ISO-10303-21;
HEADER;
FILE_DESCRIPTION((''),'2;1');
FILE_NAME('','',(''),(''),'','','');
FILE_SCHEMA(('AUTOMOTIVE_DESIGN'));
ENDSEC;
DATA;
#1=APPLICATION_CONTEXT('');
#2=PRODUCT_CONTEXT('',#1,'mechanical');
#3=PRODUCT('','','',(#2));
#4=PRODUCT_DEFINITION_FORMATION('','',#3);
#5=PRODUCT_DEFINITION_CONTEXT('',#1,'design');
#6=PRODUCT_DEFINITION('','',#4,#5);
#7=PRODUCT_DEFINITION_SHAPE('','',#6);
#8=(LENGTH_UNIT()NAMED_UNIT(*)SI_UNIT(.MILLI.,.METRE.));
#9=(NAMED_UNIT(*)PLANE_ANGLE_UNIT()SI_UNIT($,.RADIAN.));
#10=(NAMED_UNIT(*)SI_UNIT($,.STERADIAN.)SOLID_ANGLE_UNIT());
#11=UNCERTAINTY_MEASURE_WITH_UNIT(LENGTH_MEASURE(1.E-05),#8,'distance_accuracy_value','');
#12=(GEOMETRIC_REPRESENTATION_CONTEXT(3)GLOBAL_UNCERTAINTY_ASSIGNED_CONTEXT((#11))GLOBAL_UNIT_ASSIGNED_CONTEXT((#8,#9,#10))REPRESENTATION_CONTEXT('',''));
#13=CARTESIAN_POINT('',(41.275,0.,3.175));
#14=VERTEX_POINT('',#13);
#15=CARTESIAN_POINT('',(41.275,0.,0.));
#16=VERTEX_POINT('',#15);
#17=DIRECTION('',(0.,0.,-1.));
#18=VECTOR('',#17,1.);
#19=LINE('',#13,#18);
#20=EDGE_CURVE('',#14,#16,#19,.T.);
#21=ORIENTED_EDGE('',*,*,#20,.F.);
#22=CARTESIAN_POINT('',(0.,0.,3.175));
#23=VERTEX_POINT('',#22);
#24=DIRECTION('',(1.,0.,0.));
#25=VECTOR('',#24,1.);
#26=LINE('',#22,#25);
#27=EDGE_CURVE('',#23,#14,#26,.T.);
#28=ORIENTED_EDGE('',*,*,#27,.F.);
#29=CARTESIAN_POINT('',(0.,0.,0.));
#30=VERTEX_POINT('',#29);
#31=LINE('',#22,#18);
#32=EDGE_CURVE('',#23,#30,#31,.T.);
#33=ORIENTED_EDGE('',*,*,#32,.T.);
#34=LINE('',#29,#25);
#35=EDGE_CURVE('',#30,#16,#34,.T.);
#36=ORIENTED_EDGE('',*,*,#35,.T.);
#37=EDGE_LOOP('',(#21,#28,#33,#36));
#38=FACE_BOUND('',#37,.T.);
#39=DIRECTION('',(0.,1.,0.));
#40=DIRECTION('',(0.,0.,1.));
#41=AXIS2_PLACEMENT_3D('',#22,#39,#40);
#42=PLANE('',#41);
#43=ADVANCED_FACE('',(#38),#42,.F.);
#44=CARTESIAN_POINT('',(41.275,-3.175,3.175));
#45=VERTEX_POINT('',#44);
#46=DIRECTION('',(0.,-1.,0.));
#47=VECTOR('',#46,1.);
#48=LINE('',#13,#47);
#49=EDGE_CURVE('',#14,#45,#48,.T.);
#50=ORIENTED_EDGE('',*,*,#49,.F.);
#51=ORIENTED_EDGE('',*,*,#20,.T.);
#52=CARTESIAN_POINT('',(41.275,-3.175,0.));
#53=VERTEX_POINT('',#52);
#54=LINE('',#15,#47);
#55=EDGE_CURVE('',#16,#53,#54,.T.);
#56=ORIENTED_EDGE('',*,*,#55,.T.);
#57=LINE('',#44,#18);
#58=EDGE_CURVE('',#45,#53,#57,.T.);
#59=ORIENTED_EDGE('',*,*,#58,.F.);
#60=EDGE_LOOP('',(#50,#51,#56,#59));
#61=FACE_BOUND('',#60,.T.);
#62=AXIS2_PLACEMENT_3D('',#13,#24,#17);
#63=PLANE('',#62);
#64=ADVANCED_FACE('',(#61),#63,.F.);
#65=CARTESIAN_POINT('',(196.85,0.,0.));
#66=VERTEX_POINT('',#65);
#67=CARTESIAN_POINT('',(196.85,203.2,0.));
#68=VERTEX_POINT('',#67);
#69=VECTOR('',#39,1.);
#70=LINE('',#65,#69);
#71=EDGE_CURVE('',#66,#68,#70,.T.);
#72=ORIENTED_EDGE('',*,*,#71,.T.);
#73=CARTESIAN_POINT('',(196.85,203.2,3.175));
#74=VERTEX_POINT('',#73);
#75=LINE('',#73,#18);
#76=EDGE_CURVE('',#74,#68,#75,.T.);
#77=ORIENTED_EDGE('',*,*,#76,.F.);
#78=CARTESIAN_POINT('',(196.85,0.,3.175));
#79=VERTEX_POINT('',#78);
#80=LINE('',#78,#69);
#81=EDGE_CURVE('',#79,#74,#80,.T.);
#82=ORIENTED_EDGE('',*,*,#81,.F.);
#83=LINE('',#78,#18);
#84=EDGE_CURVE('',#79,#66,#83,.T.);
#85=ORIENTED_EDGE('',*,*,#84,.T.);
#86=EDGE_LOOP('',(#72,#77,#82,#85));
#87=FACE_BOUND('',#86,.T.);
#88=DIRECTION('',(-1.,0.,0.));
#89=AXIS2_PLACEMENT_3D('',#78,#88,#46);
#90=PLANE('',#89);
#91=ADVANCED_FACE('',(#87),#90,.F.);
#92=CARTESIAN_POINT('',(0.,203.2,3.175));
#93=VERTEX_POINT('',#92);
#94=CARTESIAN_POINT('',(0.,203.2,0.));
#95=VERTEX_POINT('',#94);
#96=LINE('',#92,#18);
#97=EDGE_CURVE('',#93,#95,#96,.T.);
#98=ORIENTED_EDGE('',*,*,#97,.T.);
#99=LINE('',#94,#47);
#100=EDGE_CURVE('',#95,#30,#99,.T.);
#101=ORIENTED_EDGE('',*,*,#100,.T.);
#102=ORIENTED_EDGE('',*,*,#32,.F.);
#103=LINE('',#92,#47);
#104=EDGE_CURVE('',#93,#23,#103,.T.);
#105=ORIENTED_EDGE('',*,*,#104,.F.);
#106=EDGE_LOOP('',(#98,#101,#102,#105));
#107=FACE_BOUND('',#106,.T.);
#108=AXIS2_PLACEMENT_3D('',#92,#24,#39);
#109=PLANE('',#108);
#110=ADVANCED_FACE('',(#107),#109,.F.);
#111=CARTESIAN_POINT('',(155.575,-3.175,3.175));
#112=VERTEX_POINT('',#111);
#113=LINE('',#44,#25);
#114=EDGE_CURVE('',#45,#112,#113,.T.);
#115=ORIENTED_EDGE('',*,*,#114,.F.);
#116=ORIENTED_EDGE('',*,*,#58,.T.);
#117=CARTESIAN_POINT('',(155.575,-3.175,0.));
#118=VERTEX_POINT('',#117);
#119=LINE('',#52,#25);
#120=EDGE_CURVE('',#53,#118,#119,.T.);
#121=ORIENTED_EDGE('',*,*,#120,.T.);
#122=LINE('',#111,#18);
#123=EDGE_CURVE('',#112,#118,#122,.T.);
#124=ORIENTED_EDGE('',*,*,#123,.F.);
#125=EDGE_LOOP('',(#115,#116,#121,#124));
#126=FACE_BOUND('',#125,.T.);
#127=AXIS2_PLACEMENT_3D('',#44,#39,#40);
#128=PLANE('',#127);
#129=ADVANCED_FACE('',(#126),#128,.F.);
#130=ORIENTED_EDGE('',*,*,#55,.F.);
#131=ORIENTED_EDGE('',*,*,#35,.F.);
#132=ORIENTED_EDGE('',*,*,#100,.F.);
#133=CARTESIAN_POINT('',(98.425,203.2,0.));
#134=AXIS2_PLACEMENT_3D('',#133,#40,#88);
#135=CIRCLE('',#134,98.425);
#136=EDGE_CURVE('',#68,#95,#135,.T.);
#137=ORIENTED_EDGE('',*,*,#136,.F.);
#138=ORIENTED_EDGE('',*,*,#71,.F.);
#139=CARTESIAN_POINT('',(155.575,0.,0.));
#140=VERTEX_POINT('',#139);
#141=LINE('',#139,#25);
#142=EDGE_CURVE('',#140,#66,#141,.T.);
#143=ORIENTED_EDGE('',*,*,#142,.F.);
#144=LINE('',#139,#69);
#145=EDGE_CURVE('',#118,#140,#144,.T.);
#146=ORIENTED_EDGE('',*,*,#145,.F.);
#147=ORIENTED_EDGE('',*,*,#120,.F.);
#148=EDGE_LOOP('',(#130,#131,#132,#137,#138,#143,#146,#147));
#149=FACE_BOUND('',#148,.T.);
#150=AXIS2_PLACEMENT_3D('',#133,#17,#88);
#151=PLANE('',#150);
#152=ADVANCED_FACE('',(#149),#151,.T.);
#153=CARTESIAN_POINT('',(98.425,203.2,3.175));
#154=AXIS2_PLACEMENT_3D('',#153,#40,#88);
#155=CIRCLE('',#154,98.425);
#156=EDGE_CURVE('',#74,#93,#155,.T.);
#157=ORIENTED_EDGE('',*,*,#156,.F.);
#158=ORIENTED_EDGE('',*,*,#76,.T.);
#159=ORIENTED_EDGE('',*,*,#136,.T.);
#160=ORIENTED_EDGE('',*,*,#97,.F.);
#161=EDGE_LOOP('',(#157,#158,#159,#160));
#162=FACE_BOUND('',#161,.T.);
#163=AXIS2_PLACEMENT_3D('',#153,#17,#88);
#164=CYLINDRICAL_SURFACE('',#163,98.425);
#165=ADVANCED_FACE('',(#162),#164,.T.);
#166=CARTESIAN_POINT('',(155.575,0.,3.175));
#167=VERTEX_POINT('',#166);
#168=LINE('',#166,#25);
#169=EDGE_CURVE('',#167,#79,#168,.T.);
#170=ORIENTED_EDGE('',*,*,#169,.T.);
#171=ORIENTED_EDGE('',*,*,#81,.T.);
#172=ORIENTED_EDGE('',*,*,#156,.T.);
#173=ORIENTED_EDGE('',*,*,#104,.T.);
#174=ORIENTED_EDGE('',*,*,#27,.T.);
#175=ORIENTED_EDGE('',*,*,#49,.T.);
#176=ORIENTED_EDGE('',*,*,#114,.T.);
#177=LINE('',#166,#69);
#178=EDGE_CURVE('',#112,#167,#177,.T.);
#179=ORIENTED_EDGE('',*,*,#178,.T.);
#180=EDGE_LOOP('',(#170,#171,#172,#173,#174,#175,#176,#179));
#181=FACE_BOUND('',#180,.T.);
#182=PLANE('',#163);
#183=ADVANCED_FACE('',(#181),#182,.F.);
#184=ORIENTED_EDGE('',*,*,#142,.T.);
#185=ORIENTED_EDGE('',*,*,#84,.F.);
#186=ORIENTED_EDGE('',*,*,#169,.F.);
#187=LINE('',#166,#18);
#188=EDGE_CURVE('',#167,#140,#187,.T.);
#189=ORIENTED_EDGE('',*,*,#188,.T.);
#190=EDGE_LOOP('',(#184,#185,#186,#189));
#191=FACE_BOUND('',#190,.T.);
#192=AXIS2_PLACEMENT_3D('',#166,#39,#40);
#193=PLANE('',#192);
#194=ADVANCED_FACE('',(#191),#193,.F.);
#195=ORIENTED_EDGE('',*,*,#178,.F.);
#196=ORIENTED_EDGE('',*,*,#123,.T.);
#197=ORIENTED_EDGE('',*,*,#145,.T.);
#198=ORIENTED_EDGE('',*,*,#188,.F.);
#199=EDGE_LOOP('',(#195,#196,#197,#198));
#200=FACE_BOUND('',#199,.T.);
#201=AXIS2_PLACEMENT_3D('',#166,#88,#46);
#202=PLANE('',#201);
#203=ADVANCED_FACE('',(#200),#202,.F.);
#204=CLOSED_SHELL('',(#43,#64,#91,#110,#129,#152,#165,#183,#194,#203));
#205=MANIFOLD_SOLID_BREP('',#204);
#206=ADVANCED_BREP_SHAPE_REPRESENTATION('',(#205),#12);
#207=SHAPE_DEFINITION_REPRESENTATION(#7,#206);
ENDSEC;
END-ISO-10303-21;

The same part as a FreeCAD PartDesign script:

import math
import FreeCAD as App
import Part
import Sketcher
Q = App.Units.Quantity

doc = App.newDocument("Part")
body = doc.addObject("PartDesign::Body", "Body")

sketch1 = body.newObject("Sketcher::SketchObject", "Sketch")
sketch1.AttachmentSupport = (doc.getObject("XY_Plane"), [""])
sketch1.MapMode = "FlatFace"
sketch1.addGeometry(Part.LineSegment(App.Vector(0, 203.2, 0), App.Vector(0, 0, 0)), False)
sketch1.addGeometry(Part.LineSegment(App.Vector(0, 0, 0), App.Vector(41.3, 0, 0)), False)
sketch1.addGeometry(Part.LineSegment(App.Vector(41.3, 0, 0), App.Vector(41.3, -3.2, 0)), False)
sketch1.addGeometry(Part.LineSegment(App.Vector(41.3, -3.2, 0), App.Vector(155.6, -3.2, 0)), False)
sketch1.addGeometry(Part.LineSegment(App.Vector(155.6, -3.2, 0), App.Vector(155.6, 0, 0)), False)
sketch1.addGeometry(Part.LineSegment(App.Vector(155.6, 0, 0), App.Vector(196.8, 0, 0)), False)
sketch1.addGeometry(Part.LineSegment(App.Vector(196.8, 0, 0), App.Vector(196.8, 203.2, 0)), False)
sketch1.addGeometry(Part.ArcOfCircle(Part.Circle(App.Vector(98.4, 203.2, 0), App.Vector(0, 0, 1), 98.4), math.radians(0), math.radians(180)), False)
sketch1.addConstraint(Sketcher.Constraint("Coincident", 0, 2, 1, 1))
sketch1.addConstraint(Sketcher.Constraint("Coincident", 1, 2, 2, 1))
sketch1.addConstraint(Sketcher.Constraint("Coincident", 2, 2, 3, 1))
sketch1.addConstraint(Sketcher.Constraint("Coincident", 3, 2, 4, 1))
sketch1.addConstraint(Sketcher.Constraint("Coincident", 4, 2, 5, 1))
sketch1.addConstraint(Sketcher.Constraint("Coincident", 5, 2, 6, 1))
sketch1.addConstraint(Sketcher.Constraint("Tangent", 6, 2, 7, 1))
sketch1.addConstraint(Sketcher.Constraint("Tangent", 7, 2, 0, 1))
sketch1.addConstraint(Sketcher.Constraint("Vertical", 0))
sketch1.addConstraint(Sketcher.Constraint("Horizontal", 1))
sketch1.addConstraint(Sketcher.Constraint("Vertical", 2))
sketch1.addConstraint(Sketcher.Constraint("Horizontal", 3))
sketch1.addConstraint(Sketcher.Constraint("Vertical", 4))
sketch1.addConstraint(Sketcher.Constraint("Horizontal", 5))
sketch1.addConstraint(Sketcher.Constraint("Vertical", 6))
sketch1.addConstraint(Sketcher.Constraint("Coincident", 0, 2, -1, 1))
sketch1.addConstraint(Sketcher.Constraint("PointOnObject", 4, 2, -1))
sketch1.addConstraint(Sketcher.Constraint("Equal", 1, 5))
sketch1.addConstraint(Sketcher.Constraint("DistanceY", 0, 2, 0, 1, Q("8 in")))
sketch1.addConstraint(Sketcher.Constraint("DistanceX", 3, 1, 3, 2, Q("4.5 in")))
sketch1.addConstraint(Sketcher.Constraint("Radius", 7, Q("3.875 in")))
sketch1.addConstraint(Sketcher.Constraint("DistanceY", 2, 2, 2, 1, Q("0.125 in")))
pad1 = body.newObject("PartDesign::Pad", "Pad")
pad1.Profile = sketch1
pad1.Length = Q("0.125 in")

doc.recompute()
